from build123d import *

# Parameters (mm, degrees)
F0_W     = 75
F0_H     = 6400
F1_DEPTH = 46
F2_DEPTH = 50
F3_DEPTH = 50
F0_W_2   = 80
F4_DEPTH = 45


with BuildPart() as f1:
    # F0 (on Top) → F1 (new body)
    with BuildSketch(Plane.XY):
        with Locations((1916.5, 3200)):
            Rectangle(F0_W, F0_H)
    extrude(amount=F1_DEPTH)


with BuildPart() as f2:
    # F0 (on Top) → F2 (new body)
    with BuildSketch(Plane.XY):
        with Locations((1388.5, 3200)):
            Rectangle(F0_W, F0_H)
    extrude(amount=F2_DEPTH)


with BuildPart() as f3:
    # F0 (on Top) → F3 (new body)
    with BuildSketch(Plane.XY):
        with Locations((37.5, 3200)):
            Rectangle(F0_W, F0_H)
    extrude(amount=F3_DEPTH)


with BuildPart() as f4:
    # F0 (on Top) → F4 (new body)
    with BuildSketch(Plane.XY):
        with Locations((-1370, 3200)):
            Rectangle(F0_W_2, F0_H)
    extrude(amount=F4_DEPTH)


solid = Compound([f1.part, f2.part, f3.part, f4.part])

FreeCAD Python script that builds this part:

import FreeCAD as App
import Part
import Sketcher

V = App.Vector

doc = App.newDocument("Part")
body = doc.addObject("PartDesign::Body", "Body")

sketch1 = body.newObject("Sketcher::SketchObject", "Sketch")
sketch1.AttachmentSupport = (doc.getObject("XY_Plane"), [""])
sketch1.MapMode = "FlatFace"
sketch1.addGeometry([
    Part.LineSegment(V(1879, 6400, 0), V(1879, 0, 0)),
    Part.LineSegment(V(1879, 0, 0), V(1954, 0, 0)),
    Part.LineSegment(V(1954, 0, 0), V(1954, 6400, 0)),
    Part.LineSegment(V(1954, 6400, 0), V(1879, 6400, 0)),
], False)
sketch1.addConstraint([
    Sketcher.Constraint("Coincident", 0, 2, 1, 1),
    Sketcher.Constraint("Coincident", 1, 2, 2, 1),
    Sketcher.Constraint("Coincident", 2, 2, 3, 1),
    Sketcher.Constraint("Coincident", 3, 2, 0, 1),
    Sketcher.Constraint("Vertical", 0),
    Sketcher.Constraint("Horizontal", 1),
    Sketcher.Constraint("Vertical", 2),
    Sketcher.Constraint("Horizontal", 3),
    Sketcher.Constraint("PointOnObject", 0, 2, -1),
    Sketcher.Constraint("DistanceX", 1, 1, 1, 2, 75.0),
    Sketcher.Constraint("DistanceY", 0, 2, 0, 1, 6400.0),
    Sketcher.Constraint("DistanceX", -1, 1, 0, 2, 1879.0),
])
pad1 = body.newObject("PartDesign::Pad", "Pad")
pad1.Profile = sketch1
pad1.Length = 46
body2 = doc.addObject("PartDesign::Body", "Body001")

sketch2 = body2.newObject("Sketcher::SketchObject", "Sketch001")
sketch2.AttachmentSupport = (doc.getObject("XY_Plane001"), [""])
sketch2.MapMode = "FlatFace"
sketch2.addGeometry([
    Part.LineSegment(V(1351, 6400, 0), V(1351, 0, 0)),
    Part.LineSegment(V(1351, 0, 0), V(1426, 0, 0)),
    Part.LineSegment(V(1426, 0, 0), V(1426, 6400, 0)),
    Part.LineSegment(V(1426, 6400, 0), V(1351, 6400, 0)),
], False)
sketch2.addConstraint([
    Sketcher.Constraint("Coincident", 0, 2, 1, 1),
    Sketcher.Constraint("Coincident", 1, 2, 2, 1),
    Sketcher.Constraint("Coincident", 2, 2, 3, 1),
    Sketcher.Constraint("Coincident", 3, 2, 0, 1),
    Sketcher.Constraint("Vertical", 0),
    Sketcher.Constraint("Horizontal", 1),
    Sketcher.Constraint("Vertical", 2),
    Sketcher.Constraint("Horizontal", 3),
    Sketcher.Constraint("PointOnObject", 0, 2, -1),
    Sketcher.Constraint("DistanceX", 1, 1, 1, 2, 75.0),
    Sketcher.Constraint("DistanceY", 0, 2, 0, 1, 6400.0),
    Sketcher.Constraint("DistanceX", -1, 1, 0, 2, 1351.0),
])
pad2 = body2.newObject("PartDesign::Pad", "Pad001")
pad2.Profile = sketch2
pad2.Length = 50
body3 = doc.addObject("PartDesign::Body", "Body002")

sketch3 = body3.newObject("Sketcher::SketchObject", "Sketch002")
sketch3.AttachmentSupport = (doc.getObject("XY_Plane002"), [""])
sketch3.MapMode = "FlatFace"
sketch3.addGeometry([
    Part.LineSegment(V(0, 6400, 0), V(0, 0, 0)),
    Part.LineSegment(V(0, 0, 0), V(75, 0, 0)),
    Part.LineSegment(V(75, 0, 0), V(75, 6400, 0)),
    Part.LineSegment(V(75, 6400, 0), V(0, 6400, 0)),
], False)
sketch3.addConstraint([
    Sketcher.Constraint("Coincident", 0, 2, 1, 1),
    Sketcher.Constraint("Coincident", 1, 2, 2, 1),
    Sketcher.Constraint("Coincident", 2, 2, 3, 1),
    Sketcher.Constraint("Coincident", 3, 2, 0, 1),
    Sketcher.Constraint("Vertical", 0),
    Sketcher.Constraint("Horizontal", 1),
    Sketcher.Constraint("Vertical", 2),
    Sketcher.Constraint("Horizontal", 3),
    Sketcher.Constraint("Coincident", 0, 2, -1, 1),
    Sketcher.Constraint("DistanceX", 1, 1, 1, 2, 75.0),
    Sketcher.Constraint("DistanceY", 0, 2, 0, 1, 6400.0),
])
pad3 = body3.newObject("PartDesign::Pad", "Pad002")
pad3.Profile = sketch3
pad3.Length = 50
body4 = doc.addObject("PartDesign::Body", "Body003")

sketch4 = body4.newObject("Sketcher::SketchObject", "Sketch003")
sketch4.AttachmentSupport = (doc.getObject("XY_Plane003"), [""])
sketch4.MapMode = "FlatFace"
sketch4.addGeometry([
    Part.LineSegment(V(-1410, 6400, 0), V(-1410, 0, 0)),
    Part.LineSegment(V(-1410, 0, 0), V(-1330, 0, 0)),
    Part.LineSegment(V(-1330, 0, 0), V(-1330, 6400, 0)),
    Part.LineSegment(V(-1330, 6400, 0), V(-1410, 6400, 0)),
], False)
sketch4.addConstraint([
    Sketcher.Constraint("Coincident", 0, 2, 1, 1),
    Sketcher.Constraint("Coincident", 1, 2, 2, 1),
    Sketcher.Constraint("Coincident", 2, 2, 3, 1),
    Sketcher.Constraint("Coincident", 3, 2, 0, 1),
    Sketcher.Constraint("Vertical", 0),
    Sketcher.Constraint("Horizontal", 1),
    Sketcher.Constraint("Vertical", 2),
    Sketcher.Constraint("Horizontal", 3),
    Sketcher.Constraint("PointOnObject", 0, 2, -1),
    Sketcher.Constraint("DistanceX", 1, 1, 1, 2, 80.0),
    Sketcher.Constraint("DistanceY", 0, 2, 0, 1, 6400.0),
    Sketcher.Constraint("DistanceX", 0, 2, -1, 1, 1410.0),
])
pad4 = body4.newObject("PartDesign::Pad", "Pad003")
pad4.Profile = sketch4
pad4.Length = 45

doc.recompute()
